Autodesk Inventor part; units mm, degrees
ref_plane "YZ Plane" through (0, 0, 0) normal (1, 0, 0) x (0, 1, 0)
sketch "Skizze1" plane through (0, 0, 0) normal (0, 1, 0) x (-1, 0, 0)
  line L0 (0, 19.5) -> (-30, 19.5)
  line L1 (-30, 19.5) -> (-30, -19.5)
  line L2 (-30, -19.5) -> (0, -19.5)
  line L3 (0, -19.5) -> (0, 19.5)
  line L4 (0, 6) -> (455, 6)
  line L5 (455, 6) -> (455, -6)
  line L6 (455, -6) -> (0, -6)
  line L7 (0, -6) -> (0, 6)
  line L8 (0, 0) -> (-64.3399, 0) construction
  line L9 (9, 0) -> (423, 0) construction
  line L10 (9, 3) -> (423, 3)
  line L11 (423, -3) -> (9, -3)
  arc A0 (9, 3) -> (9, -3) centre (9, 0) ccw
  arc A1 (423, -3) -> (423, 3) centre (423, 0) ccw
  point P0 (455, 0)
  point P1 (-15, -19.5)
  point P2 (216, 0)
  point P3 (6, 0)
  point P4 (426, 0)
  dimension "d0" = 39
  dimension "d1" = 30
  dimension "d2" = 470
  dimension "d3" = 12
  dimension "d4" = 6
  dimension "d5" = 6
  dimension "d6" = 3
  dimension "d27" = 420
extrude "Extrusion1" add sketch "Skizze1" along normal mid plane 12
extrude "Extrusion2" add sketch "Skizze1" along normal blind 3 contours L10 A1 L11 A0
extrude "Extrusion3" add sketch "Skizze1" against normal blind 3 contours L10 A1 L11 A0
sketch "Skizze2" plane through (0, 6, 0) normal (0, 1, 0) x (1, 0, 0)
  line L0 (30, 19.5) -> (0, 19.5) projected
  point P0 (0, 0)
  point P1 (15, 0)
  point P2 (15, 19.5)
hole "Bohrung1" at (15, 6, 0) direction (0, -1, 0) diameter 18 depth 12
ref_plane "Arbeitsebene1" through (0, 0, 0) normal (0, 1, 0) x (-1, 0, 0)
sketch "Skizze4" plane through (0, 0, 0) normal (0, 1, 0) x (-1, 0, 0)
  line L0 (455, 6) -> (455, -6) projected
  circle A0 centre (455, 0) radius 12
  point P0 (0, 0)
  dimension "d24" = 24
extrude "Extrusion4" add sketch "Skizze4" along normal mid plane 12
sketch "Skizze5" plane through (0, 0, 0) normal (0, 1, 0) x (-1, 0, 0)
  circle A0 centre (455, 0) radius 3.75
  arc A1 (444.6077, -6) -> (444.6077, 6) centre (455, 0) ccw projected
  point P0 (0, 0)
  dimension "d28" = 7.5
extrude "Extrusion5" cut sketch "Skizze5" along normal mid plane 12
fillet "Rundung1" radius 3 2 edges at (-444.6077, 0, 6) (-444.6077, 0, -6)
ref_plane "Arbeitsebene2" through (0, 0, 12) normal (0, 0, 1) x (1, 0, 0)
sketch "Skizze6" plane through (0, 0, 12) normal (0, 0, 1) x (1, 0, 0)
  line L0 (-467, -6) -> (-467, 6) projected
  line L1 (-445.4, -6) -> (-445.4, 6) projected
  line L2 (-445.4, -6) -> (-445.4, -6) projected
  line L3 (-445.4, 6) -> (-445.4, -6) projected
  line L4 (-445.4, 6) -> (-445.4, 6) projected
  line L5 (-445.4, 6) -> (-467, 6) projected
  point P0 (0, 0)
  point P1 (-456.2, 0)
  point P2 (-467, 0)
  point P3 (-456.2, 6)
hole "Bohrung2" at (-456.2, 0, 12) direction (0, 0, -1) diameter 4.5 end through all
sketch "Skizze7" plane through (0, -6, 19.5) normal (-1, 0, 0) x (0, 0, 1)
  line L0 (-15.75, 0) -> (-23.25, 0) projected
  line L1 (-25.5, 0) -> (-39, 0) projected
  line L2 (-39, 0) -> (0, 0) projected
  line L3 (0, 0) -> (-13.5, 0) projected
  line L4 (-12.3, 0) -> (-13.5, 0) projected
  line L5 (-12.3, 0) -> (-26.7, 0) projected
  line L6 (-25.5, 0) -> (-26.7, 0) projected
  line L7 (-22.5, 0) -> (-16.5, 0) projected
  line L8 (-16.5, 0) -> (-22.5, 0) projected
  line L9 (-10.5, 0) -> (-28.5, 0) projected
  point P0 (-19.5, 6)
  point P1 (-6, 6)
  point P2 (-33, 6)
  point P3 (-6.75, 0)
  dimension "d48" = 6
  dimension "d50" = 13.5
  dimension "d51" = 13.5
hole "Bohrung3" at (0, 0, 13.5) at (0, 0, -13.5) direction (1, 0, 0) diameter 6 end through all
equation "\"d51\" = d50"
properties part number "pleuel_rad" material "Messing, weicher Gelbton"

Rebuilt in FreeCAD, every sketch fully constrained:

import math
import FreeCAD as App
import Part
import Sketcher
from FreeCAD import Vector
Q = App.Units.Quantity


def edges_at(feature, points):
    """Names of the edges that pass closest to the given points."""
    edges = feature.Shape.Edges
    near = lambda p: min(range(len(edges)), key=lambda i: edges[i].distToShape(Part.Vertex(*p))[0])
    return sorted({f"Edge{near(p) + 1}" for p in points})

doc = App.newDocument("Part")
body = doc.addObject("PartDesign::Body", "Body")

# Sketch on XZ plane
sketch1 = body.newObject("Sketcher::SketchObject", "Sketch")
sketch1.AttachmentSupport = (doc.getObject("XZ_Plane"), [""])
sketch1.MapMode = "FlatFace"
sketch1.addGeometry([
    Part.LineSegment(Vector(0, 6, 0), Vector(0, 19.5, 0)),  # 0
    Part.LineSegment(Vector(0, 19.5, 0), Vector(30, 19.5, 0)),  # 1
    Part.LineSegment(Vector(30, 19.5, 0), Vector(30, -19.5, 0)),  # 2
    Part.LineSegment(Vector(30, -19.5, 0), Vector(0, -19.5, 0)),  # 3
    Part.LineSegment(Vector(0, -19.5, 0), Vector(0, -6, 0)),  # 4
    Part.LineSegment(Vector(0, -6, 0), Vector(-455, -6, 0)),  # 5
    Part.LineSegment(Vector(-455, -6, 0), Vector(-455, 6, 0)),  # 6
    Part.LineSegment(Vector(-455, 6, 0), Vector(0, 6, 0)),  # 7
    Part.LineSegment(Vector(-9, 3, 0), Vector(-423, 3, 0)),  # 8
    Part.ArcOfCircle(Part.Circle(Vector(-423, 0, 0), Vector(0, 0, 1), 3), math.radians(90), math.radians(270)),  # 9
    Part.LineSegment(Vector(-423, -3, 0), Vector(-9, -3, 0)),  # 10
    Part.ArcOfCircle(Part.Circle(Vector(-9, 0, 0), Vector(0, 0, 1), 3), math.radians(-90), math.radians(90)),  # 11
], False)
sketch1.addConstraint([
    Sketcher.Constraint("Coincident", 0, 2, 1, 1),
    Sketcher.Constraint("Coincident", 1, 2, 2, 1),
    Sketcher.Constraint("Coincident", 2, 2, 3, 1),
    Sketcher.Constraint("Coincident", 3, 2, 4, 1),
    Sketcher.Constraint("Coincident", 4, 2, 5, 1),
    Sketcher.Constraint("Coincident", 5, 2, 6, 1),
    Sketcher.Constraint("Coincident", 6, 2, 7, 1),
    Sketcher.Constraint("Coincident", 7, 2, 0, 1),
    Sketcher.Constraint("Tangent", 8, 2, 9, 1),
    Sketcher.Constraint("Tangent", 9, 2, 10, 1),
    Sketcher.Constraint("Tangent", 10, 2, 11, 1),
    Sketcher.Constraint("Tangent", 11, 2, 8, 1),
    Sketcher.Constraint("Vertical", 0),
    Sketcher.Constraint("Horizontal", 1),
    Sketcher.Constraint("Vertical", 2),
    Sketcher.Constraint("Horizontal", 3),
    Sketcher.Constraint("Vertical", 4),
    Sketcher.Constraint("Horizontal", 5),
    Sketcher.Constraint("Vertical", 6),
    Sketcher.Constraint("Horizontal", 7),
    Sketcher.Constraint("Horizontal", 8),
    Sketcher.Constraint("Horizontal", 10),
    Sketcher.Constraint("Symmetric", 0, 2, 3, 2, -1, 1),
    Sketcher.Constraint("Symmetric", 4, 2, 7, 2, -1),
    Sketcher.Constraint("PointOnObject", 9, 3, -1),
    Sketcher.Constraint("Radius", 9, Q("3 mm")),
    Sketcher.Constraint("DistanceX", 1, 1, 1, 2, Q("30 mm")),
    Sketcher.Constraint("DistanceY", 2, 2, 2, 1, Q("39 mm")),
    Sketcher.Constraint("DistanceY", 6, 1, 6, 2, Q("12 mm")),
    Sketcher.Constraint("DistanceX", 11, 3, 1, 2, Q("39 mm")),
    Sketcher.Constraint("DistanceX", 5, 2, 5, 1, Q("455 mm")),
    Sketcher.Constraint("DistanceX", 8, 2, 8, 1, Q("414 mm")),
])
pad1 = body.newObject("PartDesign::Pad", "Pad")
pad1.Profile = sketch1
pad1.Length = 12
pad1.Midplane = True

# Sketch on XZ plane
sketch2 = body.newObject("Sketcher::SketchObject", "Sketch001")
sketch2.AttachmentSupport = (doc.getObject("XZ_Plane"), [""])
sketch2.MapMode = "FlatFace"
sketch2.addGeometry([
    Part.LineSegment(Vector(-423, 3, 0), Vector(-9, 3, 0)),
    Part.ArcOfCircle(Part.Circle(Vector(-9, 0, 0), Vector(0, 0, 1), 3), math.radians(-90), math.radians(90)),
    Part.LineSegment(Vector(-9, -3, 0), Vector(-423, -3, 0)),
    Part.ArcOfCircle(Part.Circle(Vector(-423, 0, 0), Vector(0, 0, 1), 3), math.radians(90), math.radians(270)),
], False)
sketch2.addConstraint([
    Sketcher.Constraint("Tangent", 0, 2, 1, 2),
    Sketcher.Constraint("Tangent", 1, 1, 2, 1),
    Sketcher.Constraint("Tangent", 2, 2, 3, 2),
    Sketcher.Constraint("Tangent", 3, 1, 0, 1),
    Sketcher.Constraint("Horizontal", 0),
    Sketcher.Constraint("Horizontal", 2),
    Sketcher.Constraint("PointOnObject", 1, 3, -1),
    Sketcher.Constraint("Radius", 1, Q("3 mm")),
    Sketcher.Constraint("DistanceX", 0, 1, 0, 2, Q("414 mm")),
    Sketcher.Constraint("DistanceX", 1, 3, -1, 1, Q("9 mm")),
])
pad2 = body.newObject("PartDesign::Pad", "Pad001")
pad2.Profile = sketch2
pad2.Length = 3
pad2.Reversed = True

# Sketch on XZ plane
sketch3 = body.newObject("Sketcher::SketchObject", "Sketch002")
sketch3.AttachmentSupport = (doc.getObject("XZ_Plane"), [""])
sketch3.MapMode = "FlatFace"
sketch3.addGeometry([
    Part.LineSegment(Vector(-423, 3, 0), Vector(-9, 3, 0)),
    Part.ArcOfCircle(Part.Circle(Vector(-9, 0, 0), Vector(0, 0, 1), 3), math.radians(-90), math.radians(90)),
    Part.LineSegment(Vector(-9, -3, 0), Vector(-423, -3, 0)),
    Part.ArcOfCircle(Part.Circle(Vector(-423, 0, 0), Vector(0, 0, 1), 3), math.radians(90), math.radians(270)),
], False)
sketch3.addConstraint([
    Sketcher.Constraint("Tangent", 0, 2, 1, 2),
    Sketcher.Constraint("Tangent", 1, 1, 2, 1),
    Sketcher.Constraint("Tangent", 2, 2, 3, 2),
    Sketcher.Constraint("Tangent", 3, 1, 0, 1),
    Sketcher.Constraint("Horizontal", 0),
    Sketcher.Constraint("Horizontal", 2),
    Sketcher.Constraint("PointOnObject", 1, 3, -1),
    Sketcher.Constraint("Radius", 1, Q("3 mm")),
    Sketcher.Constraint("DistanceX", 0, 1, 0, 2, Q("414 mm")),
    Sketcher.Constraint("DistanceX", 1, 3, -1, 1, Q("9 mm")),
])
pad3 = body.newObject("PartDesign::Pad", "Pad002")
pad3.Profile = sketch3
pad3.Length = 3

# Sketch on XZ plane
sketch4 = body.newObject("Sketcher::SketchObject", "Sketch003")
sketch4.AttachmentSupport = (doc.getObject("XZ_Plane"), [""])
sketch4.MapMode = "FlatFace"
sketch4.AttachmentOffset = App.Placement(Vector(0, 0, -6), App.Rotation())
sketch4.addGeometry(Part.Circle(Vector(15, 0, 0), Vector(0, 0, 1), 9), False)
sketch4.addConstraint([
    Sketcher.Constraint("PointOnObject", 0, 3, -1),
    Sketcher.Constraint("Diameter", 0, Q("18 mm")),
    Sketcher.Constraint("DistanceX", -1, 1, 0, 3, Q("15 mm")),
])
doc.recompute()
hole = body.newObject("PartDesign::Hole", "Hole")
hole.Profile = sketch4
hole.ThreadType = "None"
hole.Diameter = 18
hole.DepthType = "Dimension"
hole.Depth = 12
hole.DrillPoint = "Flat"
hole.Reversed = True

# Sketch on XZ plane
sketch5 = body.newObject("Sketcher::SketchObject", "Sketch004")
sketch5.AttachmentSupport = (doc.getObject("XZ_Plane"), [""])
sketch5.MapMode = "FlatFace"
sketch5.addGeometry(Part.Circle(Vector(-455, 0, 0), Vector(0, 0, 1), 12), False)
sketch5.addConstraint([
    Sketcher.Constraint("PointOnObject", 0, 3, -1),
    Sketcher.Constraint("Diameter", 0, Q("24 mm")),
    Sketcher.Constraint("DistanceX", 0, 3, -1, 1, Q("455 mm")),
])
pad4 = body.newObject("PartDesign::Pad", "Pad003")
pad4.Profile = sketch5
pad4.Length = 12
pad4.Midplane = True

# Sketch on XZ plane
sketch6 = body.newObject("Sketcher::SketchObject", "Sketch005")
sketch6.AttachmentSupport = (doc.getObject("XZ_Plane"), [""])
sketch6.MapMode = "FlatFace"
sketch6.addGeometry(Part.Circle(Vector(-455, 0, 0), Vector(0, 0, 1), 3.8), False)
sketch6.addConstraint([
    Sketcher.Constraint("PointOnObject", 0, 3, -1),
    Sketcher.Constraint("Diameter", 0, Q("7.5 mm")),
    Sketcher.Constraint("DistanceX", 0, 3, -1, 1, Q("455 mm")),
])
pocket1 = body.newObject("PartDesign::Pocket", "Pocket")
pocket1.Profile = sketch6
pocket1.Length = 12
pocket1.Midplane = True
doc.recompute()

fillet = body.newObject("PartDesign::Fillet", "Fillet")
fillet.Base = (pocket1, edges_at(pocket1, [(-444.608, 0, 6), (-444.608, 0, -6)]))
fillet.Radius = 3

# Sketch on XY plane
sketch7 = body.newObject("Sketcher::SketchObject", "Sketch006")
sketch7.AttachmentSupport = (doc.getObject("XY_Plane"), [""])
sketch7.MapMode = "FlatFace"
sketch7.AttachmentOffset = App.Placement(Vector(0, 0, 12), App.Rotation())
sketch7.addGeometry(Part.Circle(Vector(-456.2, 0, 0), Vector(0, 0, 1), 2.2), False)
sketch7.addConstraint([
    Sketcher.Constraint("PointOnObject", 0, 3, -1),
    Sketcher.Constraint("Diameter", 0, Q("4.5 mm")),
    Sketcher.Constraint("DistanceX", 0, 3, -1, 1, Q("456.2 mm")),
])
doc.recompute()
hole2 = body.newObject("PartDesign::Hole", "Hole001")
hole2.Profile = sketch7
hole2.ThreadType = "None"
hole2.Diameter = 4.5
hole2.DepthType = "ThroughAll"

# Sketch on YZ plane
sketch8 = body.newObject("Sketcher::SketchObject", "Sketch007")
sketch8.AttachmentSupport = (doc.getObject("YZ_Plane"), [""])
sketch8.MapMode = "FlatFace"
sketch8.addGeometry([
    Part.Circle(Vector(0, 13.5, 0), Vector(0, 0, 1), 3),
    Part.Circle(Vector(0, -13.5, 0), Vector(0, 0, 1), 3),
], False)
sketch8.addConstraint([
    Sketcher.Constraint("Equal", 0, 1),
    Sketcher.Constraint("Symmetric", 0, 3, 1, 3, -1, 1),
    Sketcher.Constraint("PointOnObject", 0, 3, -2),
    Sketcher.Constraint("Diameter", 0, Q("6 mm")),
    Sketcher.Constraint("DistanceY", 1, 3, 0, 3, Q("27 mm")),
])
doc.recompute()
hole3 = body.newObject("PartDesign::Hole", "Hole002")
hole3.Profile = sketch8
hole3.ThreadType = "None"
hole3.Diameter = 6
hole3.DepthType = "ThroughAll"
hole3.Reversed = True

doc.recompute()
